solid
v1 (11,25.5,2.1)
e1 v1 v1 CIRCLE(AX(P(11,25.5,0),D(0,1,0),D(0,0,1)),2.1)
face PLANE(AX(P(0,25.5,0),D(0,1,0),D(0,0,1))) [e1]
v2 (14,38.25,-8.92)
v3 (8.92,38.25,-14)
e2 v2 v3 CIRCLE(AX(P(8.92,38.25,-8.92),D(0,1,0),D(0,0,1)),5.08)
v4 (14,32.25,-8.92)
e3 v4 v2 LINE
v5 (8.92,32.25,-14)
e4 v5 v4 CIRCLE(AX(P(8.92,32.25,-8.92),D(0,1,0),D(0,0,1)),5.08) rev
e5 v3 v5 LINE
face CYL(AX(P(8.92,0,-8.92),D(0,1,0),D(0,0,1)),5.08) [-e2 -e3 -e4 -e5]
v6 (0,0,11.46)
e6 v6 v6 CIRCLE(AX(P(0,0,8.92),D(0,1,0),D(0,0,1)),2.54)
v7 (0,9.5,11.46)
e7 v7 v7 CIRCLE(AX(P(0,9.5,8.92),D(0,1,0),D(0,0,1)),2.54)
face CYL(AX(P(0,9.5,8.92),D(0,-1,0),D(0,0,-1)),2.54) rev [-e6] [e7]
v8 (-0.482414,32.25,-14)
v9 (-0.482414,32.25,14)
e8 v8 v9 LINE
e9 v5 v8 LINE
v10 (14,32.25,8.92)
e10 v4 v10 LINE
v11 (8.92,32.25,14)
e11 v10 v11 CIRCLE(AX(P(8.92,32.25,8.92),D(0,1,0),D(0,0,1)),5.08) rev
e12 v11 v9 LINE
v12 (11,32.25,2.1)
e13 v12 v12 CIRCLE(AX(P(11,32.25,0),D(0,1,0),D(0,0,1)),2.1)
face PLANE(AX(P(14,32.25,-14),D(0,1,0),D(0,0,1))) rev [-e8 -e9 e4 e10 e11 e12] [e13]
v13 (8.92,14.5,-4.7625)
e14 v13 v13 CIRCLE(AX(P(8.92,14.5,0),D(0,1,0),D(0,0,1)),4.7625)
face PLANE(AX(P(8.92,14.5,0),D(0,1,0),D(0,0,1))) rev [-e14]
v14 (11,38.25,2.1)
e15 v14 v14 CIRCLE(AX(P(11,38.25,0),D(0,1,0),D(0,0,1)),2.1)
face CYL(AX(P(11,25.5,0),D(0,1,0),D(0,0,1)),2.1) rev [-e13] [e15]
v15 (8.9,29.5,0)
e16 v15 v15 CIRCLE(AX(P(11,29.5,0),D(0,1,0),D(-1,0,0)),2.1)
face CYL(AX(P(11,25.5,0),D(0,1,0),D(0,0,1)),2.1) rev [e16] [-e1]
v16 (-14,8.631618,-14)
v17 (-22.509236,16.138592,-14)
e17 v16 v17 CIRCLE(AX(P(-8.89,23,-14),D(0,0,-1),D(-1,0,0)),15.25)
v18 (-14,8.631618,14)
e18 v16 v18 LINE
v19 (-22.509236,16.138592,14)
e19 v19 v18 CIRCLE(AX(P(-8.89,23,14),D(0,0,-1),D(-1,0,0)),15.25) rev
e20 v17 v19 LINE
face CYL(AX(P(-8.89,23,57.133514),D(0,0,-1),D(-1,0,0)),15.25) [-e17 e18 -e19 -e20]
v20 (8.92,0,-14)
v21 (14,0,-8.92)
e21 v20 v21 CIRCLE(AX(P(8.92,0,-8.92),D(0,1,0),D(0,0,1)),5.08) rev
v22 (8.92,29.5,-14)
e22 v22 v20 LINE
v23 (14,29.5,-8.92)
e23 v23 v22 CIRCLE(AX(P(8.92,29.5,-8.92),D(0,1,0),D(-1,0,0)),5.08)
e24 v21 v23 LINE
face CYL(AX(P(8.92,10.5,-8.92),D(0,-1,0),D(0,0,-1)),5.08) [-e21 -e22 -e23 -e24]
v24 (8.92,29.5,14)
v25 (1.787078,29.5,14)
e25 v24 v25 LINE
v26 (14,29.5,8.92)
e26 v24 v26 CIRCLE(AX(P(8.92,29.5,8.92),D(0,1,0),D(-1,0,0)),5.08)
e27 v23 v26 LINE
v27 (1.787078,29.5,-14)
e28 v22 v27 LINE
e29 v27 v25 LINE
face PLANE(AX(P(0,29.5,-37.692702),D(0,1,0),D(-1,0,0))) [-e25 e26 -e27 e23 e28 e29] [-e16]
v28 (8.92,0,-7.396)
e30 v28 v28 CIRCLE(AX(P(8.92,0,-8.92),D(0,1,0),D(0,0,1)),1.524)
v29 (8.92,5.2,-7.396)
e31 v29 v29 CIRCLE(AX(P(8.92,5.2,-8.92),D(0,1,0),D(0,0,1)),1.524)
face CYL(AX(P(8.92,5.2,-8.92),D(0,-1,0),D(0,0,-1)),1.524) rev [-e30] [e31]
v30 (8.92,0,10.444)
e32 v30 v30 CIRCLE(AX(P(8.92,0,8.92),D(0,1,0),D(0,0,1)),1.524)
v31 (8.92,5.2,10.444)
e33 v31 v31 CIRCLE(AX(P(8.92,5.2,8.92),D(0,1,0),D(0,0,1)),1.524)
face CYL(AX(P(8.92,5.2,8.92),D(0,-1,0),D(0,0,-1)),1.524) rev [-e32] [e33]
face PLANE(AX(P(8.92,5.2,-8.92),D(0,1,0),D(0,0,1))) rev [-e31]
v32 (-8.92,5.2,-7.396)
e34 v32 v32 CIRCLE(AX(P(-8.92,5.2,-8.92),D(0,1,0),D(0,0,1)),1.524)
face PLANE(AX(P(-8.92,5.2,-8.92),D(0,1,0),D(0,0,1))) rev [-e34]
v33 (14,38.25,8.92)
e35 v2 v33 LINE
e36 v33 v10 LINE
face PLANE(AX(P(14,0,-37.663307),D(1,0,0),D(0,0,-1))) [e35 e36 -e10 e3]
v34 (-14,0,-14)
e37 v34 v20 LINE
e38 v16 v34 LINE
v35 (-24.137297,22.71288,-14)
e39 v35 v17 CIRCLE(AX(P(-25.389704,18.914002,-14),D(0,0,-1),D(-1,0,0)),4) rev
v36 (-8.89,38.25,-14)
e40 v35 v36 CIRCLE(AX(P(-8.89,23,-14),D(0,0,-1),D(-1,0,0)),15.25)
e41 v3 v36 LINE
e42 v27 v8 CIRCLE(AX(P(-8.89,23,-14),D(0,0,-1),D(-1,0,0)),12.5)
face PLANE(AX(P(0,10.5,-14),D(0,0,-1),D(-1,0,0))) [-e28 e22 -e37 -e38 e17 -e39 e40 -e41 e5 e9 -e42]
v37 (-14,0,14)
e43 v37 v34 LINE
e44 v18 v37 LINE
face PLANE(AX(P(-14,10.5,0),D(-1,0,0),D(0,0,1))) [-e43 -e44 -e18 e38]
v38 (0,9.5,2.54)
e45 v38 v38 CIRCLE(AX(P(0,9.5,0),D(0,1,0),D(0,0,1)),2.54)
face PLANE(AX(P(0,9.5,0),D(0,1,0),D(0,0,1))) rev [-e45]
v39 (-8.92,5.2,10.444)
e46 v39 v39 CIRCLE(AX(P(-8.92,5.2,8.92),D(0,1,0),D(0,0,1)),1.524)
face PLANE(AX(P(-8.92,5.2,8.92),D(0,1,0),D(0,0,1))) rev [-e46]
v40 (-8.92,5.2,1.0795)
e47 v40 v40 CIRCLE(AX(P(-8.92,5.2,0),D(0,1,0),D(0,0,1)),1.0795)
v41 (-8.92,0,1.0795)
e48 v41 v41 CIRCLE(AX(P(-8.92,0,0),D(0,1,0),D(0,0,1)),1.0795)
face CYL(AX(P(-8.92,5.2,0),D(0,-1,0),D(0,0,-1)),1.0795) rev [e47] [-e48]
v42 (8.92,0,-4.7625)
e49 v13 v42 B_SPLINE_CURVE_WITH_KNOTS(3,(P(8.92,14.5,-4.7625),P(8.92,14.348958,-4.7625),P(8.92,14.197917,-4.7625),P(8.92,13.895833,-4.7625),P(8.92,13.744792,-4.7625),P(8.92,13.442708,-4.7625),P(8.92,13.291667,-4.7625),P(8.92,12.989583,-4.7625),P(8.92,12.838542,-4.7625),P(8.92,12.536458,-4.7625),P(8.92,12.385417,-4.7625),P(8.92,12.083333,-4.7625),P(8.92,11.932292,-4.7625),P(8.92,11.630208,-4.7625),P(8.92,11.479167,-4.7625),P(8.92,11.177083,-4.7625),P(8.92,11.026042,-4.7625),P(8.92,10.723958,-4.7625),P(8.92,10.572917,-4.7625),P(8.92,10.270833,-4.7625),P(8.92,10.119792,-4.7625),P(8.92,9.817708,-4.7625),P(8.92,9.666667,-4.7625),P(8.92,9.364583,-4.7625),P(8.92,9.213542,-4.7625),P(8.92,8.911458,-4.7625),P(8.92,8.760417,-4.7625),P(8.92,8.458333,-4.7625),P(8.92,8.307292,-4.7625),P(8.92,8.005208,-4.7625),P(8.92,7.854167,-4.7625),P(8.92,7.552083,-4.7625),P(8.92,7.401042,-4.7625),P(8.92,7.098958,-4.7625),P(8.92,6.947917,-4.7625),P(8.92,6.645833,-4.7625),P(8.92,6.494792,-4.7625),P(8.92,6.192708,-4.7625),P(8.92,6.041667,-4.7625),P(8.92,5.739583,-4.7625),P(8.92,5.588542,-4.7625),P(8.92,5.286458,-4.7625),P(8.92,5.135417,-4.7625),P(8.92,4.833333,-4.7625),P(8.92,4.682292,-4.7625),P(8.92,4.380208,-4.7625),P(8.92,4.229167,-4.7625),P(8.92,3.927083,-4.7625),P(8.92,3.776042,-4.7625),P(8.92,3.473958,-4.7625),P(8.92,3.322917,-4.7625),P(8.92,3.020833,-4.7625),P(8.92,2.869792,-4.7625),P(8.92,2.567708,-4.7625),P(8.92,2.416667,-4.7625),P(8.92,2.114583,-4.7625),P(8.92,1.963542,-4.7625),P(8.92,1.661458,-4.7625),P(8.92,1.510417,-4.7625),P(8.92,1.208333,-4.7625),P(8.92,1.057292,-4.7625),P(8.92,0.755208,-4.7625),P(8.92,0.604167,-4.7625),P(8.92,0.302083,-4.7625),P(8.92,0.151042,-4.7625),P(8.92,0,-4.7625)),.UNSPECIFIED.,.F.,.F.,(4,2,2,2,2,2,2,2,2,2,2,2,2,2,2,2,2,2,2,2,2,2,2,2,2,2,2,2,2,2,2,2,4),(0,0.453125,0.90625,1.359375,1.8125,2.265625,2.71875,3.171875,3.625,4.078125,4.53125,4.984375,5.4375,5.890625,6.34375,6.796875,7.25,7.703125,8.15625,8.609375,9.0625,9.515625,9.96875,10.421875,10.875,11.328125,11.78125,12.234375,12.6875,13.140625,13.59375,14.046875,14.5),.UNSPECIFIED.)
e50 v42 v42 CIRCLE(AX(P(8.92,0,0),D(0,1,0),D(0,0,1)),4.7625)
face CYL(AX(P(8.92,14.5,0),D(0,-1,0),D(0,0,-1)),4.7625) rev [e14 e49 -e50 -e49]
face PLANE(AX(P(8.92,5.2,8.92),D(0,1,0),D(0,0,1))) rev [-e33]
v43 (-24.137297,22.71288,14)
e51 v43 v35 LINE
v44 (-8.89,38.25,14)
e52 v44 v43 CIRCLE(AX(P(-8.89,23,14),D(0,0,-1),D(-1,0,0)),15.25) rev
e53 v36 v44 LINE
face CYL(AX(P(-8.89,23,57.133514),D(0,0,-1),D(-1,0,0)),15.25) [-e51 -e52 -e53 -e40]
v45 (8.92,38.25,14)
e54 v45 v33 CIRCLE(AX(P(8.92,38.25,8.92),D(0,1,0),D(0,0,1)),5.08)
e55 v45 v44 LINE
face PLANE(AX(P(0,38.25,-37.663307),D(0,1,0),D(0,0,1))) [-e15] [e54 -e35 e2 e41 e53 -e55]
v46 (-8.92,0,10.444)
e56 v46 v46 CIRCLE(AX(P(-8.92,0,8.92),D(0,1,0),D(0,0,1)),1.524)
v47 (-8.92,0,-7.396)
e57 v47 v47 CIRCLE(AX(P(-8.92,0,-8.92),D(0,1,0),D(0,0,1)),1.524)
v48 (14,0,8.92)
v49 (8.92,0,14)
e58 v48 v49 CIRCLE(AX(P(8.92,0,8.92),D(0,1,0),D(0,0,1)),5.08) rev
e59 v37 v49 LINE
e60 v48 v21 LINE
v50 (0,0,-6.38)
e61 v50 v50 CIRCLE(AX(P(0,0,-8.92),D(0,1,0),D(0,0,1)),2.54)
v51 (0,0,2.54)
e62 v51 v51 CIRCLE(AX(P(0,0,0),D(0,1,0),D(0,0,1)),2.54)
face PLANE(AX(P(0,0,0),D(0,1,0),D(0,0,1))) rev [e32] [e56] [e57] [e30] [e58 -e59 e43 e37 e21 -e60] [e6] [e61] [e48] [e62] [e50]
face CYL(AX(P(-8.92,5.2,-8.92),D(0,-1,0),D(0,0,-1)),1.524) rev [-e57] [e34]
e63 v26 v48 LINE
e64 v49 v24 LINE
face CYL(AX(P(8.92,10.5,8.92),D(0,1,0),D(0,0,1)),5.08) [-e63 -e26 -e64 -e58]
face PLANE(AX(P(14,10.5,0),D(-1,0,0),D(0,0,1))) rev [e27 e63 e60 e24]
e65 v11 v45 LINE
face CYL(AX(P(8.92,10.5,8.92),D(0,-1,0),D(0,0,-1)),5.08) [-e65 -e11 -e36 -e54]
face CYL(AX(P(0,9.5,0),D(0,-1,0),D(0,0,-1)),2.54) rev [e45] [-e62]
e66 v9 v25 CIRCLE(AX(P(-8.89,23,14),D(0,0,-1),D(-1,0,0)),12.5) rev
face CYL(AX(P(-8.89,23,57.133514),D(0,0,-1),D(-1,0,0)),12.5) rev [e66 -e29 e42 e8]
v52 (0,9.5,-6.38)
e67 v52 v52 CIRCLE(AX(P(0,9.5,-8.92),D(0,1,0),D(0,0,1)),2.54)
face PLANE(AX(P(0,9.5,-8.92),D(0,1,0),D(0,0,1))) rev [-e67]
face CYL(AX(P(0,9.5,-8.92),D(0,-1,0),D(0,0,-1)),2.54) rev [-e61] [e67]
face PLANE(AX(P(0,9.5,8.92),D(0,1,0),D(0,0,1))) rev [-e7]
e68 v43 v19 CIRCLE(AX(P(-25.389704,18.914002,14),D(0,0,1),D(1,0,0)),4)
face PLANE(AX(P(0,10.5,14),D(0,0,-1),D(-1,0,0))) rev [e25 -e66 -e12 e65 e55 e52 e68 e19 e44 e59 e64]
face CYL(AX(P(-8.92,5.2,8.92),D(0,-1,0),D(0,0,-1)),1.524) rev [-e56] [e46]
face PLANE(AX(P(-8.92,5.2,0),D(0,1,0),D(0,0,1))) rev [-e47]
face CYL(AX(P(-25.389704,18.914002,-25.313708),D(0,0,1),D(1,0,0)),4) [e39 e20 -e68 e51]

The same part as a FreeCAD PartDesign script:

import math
import FreeCAD as App
import Part
import Sketcher

V = App.Vector
Q = App.Units.Quantity


def edges_at(feature, points):
    """Names of the edges that pass closest to the given points."""
    edges = feature.Shape.Edges
    near = lambda p: min(range(len(edges)), key=lambda i: edges[i].distToShape(Part.Vertex(*p))[0])
    return sorted({f"Edge{near(p) + 1}" for p in points})

doc = App.newDocument("Part")
body = doc.addObject("PartDesign::Body", "Body")

# Sketch on XZ plane
sketch1 = body.newObject("Sketcher::SketchObject", "Sketch")
sketch1.AttachmentSupport = (doc.getObject("XZ_Plane"), [""])
sketch1.MapMode = "FlatFace"
sketch1.addGeometry([
    Part.LineSegment(V(-14, -14, 0), V(-14, 14, 0)),
    Part.LineSegment(V(-14, 14, 0), V(14, 14, 0)),
    Part.LineSegment(V(14, 14, 0), V(14, -14, 0)),
    Part.LineSegment(V(14, -14, 0), V(-14, -14, 0)),
], False)
sketch1.addConstraint([
    Sketcher.Constraint("Coincident", 0, 2, 1, 1),
    Sketcher.Constraint("Coincident", 1, 2, 2, 1),
    Sketcher.Constraint("Coincident", 2, 2, 3, 1),
    Sketcher.Constraint("Coincident", 3, 2, 0, 1),
    Sketcher.Constraint("Vertical", 0),
    Sketcher.Constraint("Horizontal", 1),
    Sketcher.Constraint("Vertical", 2),
    Sketcher.Constraint("Horizontal", 3),
    Sketcher.Constraint("Symmetric", 0, 2, 2, 2, -1, 1),
    Sketcher.Constraint("Equal", 3, 0),
    Sketcher.Constraint("DistanceX", 1, 1, 1, 2, Q("28 mm")),
])
pad1 = body.newObject("PartDesign::Pad", "Pad")
pad1.Profile = sketch1
pad1.Length = 10.5
pad1.Reversed = True

# Sketch on XY plane
sketch2 = body.newObject("Sketcher::SketchObject", "Sketch001")
sketch2.AttachmentSupport = (doc.getObject("XY_Plane"), [""])
sketch2.MapMode = "FlatFace"
sketch2.AttachmentOffset = App.Placement(V(0, 0, -14), App.Rotation())
sketch2.addGeometry([
    Part.ArcOfCircle(Part.Circle(V(-9, 23, 0), V(0, 0, 1), 15), math.radians(-109.58), math.radians(-90)),  # 0
    Part.ArcOfCircle(Part.Circle(V(-9, 23, 0), V(0, 0, 1), 15), math.radians(180), math.radians(250)),  # 1
    Part.ArcOfCircle(Part.Circle(V(-9, 23, 0), V(0, 0, 1), 15), math.radians(90), math.radians(180)),  # 2
    Part.ArcOfCircle(Part.Circle(V(-9, 23, 0), V(0, 0, 1), 15), math.radians(0), math.radians(90)),  # 3
    Part.ArcOfCircle(Part.Circle(V(-9, 23, 0), V(0, 0, 1), 15), math.radians(-55), math.radians(0)),  # 4
    Part.ArcOfCircle(Part.Circle(V(-9, 23, 0), V(0, 0, 1), 15), math.radians(-90), math.radians(-55)),  # 5
    Part.ArcOfCircle(Part.Circle(V(-9, 23, 0), V(0, 0, 1), 12), math.radians(-90), math.radians(0)),  # 6
    Part.ArcOfCircle(Part.Circle(V(-9, 23, 0), V(0, 0, 1), 12), math.radians(0), math.radians(90)),  # 7
    Part.ArcOfCircle(Part.Circle(V(-9, 23, 0), V(0, 0, 1), 12), math.radians(90), math.radians(180)),  # 8
    Part.ArcOfCircle(Part.Circle(V(-9, 23, 0), V(0, 0, 1), 12), math.radians(180), math.radians(270)),  # 9
], False)
sketch2.addConstraint([
    Sketcher.Constraint("Tangent", 0, 1, 1, 2),
    Sketcher.Constraint("Tangent", 1, 1, 2, 2),
    Sketcher.Constraint("Tangent", 2, 1, 3, 2),
    Sketcher.Constraint("Tangent", 3, 1, 4, 2),
    Sketcher.Constraint("Tangent", 4, 1, 5, 2),
    Sketcher.Constraint("Tangent", 5, 1, 0, 2),
    Sketcher.Constraint("Tangent", 6, 2, 7, 1),
    Sketcher.Constraint("Tangent", 7, 2, 8, 1),
    Sketcher.Constraint("Tangent", 8, 2, 9, 1),
    Sketcher.Constraint("Tangent", 9, 2, 6, 1),
    Sketcher.Constraint("Coincident", 2, 3, 0, 3),
    Sketcher.Constraint("Coincident", 6, 3, 0, 3),
    Sketcher.Constraint("Equal", 2, 3),
    Sketcher.Constraint("Equal", 6, 7),
    Sketcher.Constraint("Horizontal", 9, 3, 1, 1),
    Sketcher.Constraint("Horizontal", 1, 1, 3, 1),
    Sketcher.Constraint("Horizontal", 3, 1, 6, 2),
    Sketcher.Constraint("Horizontal", 6, 2, 8, 2),
    Sketcher.Constraint("Horizontal", 4, 1, 9, 2),
    Sketcher.Constraint("Vertical", 9, 3, 2, 1),
    Sketcher.Constraint("Vertical", 2, 1, 5, 1),
    Sketcher.Constraint("Vertical", 5, 1, 7, 2),
    Sketcher.Constraint("Vertical", 7, 2, 9, 2),
    Sketcher.Constraint("Radius", 6, Q("12.5 mm")),
    Sketcher.Constraint("Radius", 0, Q("15.25 mm")),
    Sketcher.Constraint("DistanceY", -1, 1, 0, 3, Q("23 mm")),
    Sketcher.Constraint("DistanceX", 0, 1, -1, 1, Q("14 mm")),
    Sketcher.Constraint("DistanceX", 0, 3, -1, 1, Q("8.89 mm")),
])
pad2 = body.newObject("PartDesign::Pad", "Pad001")
pad2.Profile = sketch2
pad2.Length = 28

# Sketch on XY plane
sketch3 = body.newObject("Sketcher::SketchObject", "Sketch002")
sketch3.AttachmentSupport = (doc.getObject("XY_Plane"), [""])
sketch3.MapMode = "FlatFace"
sketch3.AttachmentOffset = App.Placement(V(0, 0, 14), App.Rotation())
sketch3.addGeometry(Part.Circle(V(-25.4, 18.9, 0), V(0, 0, 1), 4), False)
sketch3.addConstraint([
    Sketcher.Constraint("Diameter", 0, Q("8 mm")),
    Sketcher.Constraint("DistanceX", 0, 3, -1, 1, Q("25.389704 mm")),
    Sketcher.Constraint("DistanceY", -1, 1, 0, 3, Q("18.914002 mm")),
])
pad3 = body.newObject("PartDesign::Pad", "Pad002")
pad3.Profile = sketch3
pad3.Length = 28
pad3.Reversed = True

# Sketch on XY plane
sketch4 = body.newObject("Sketcher::SketchObject", "Sketch003")
sketch4.AttachmentSupport = (doc.getObject("XY_Plane"), [""])
sketch4.MapMode = "FlatFace"
sketch4.AttachmentOffset = App.Placement(V(0, 0, -14), App.Rotation())
sketch4.addGeometry([
    Part.ArcOfCircle(Part.Circle(V(-9, 23, 0), V(0, 0, 1), 15), math.radians(-55), math.radians(25)),
    Part.LineSegment(V(0, 10, 0), V(14, 10, 0)),
    Part.LineSegment(V(14, 10, 0), V(14, 30, 0)),
    Part.LineSegment(V(14, 30, 0), V(5, 30, 0)),
], False)
sketch4.addConstraint([
    Sketcher.Constraint("Coincident", 0, 1, 1, 1),
    Sketcher.Constraint("Coincident", 1, 2, 2, 1),
    Sketcher.Constraint("Coincident", 2, 2, 3, 1),
    Sketcher.Constraint("Coincident", 3, 2, 0, 2),
    Sketcher.Constraint("Horizontal", 1),
    Sketcher.Constraint("Vertical", 2),
    Sketcher.Constraint("Horizontal", 3),
    Sketcher.Constraint("DistanceY", 2, 1, 2, 2, Q("19 mm")),
    Sketcher.Constraint("Radius", 0, Q("15.25 mm")),
    Sketcher.Constraint("DistanceY", -1, 1, 0, 3, Q("23 mm")),
    Sketcher.Constraint("DistanceX", -1, 1, 1, 2, Q("14 mm")),
    Sketcher.Constraint("DistanceY", -1, 1, 0, 1, Q("10.5 mm")),
    Sketcher.Constraint("DistanceX", 0, 3, -1, 1, Q("8.89 mm")),
])
pad4 = body.newObject("PartDesign::Pad", "Pad003")
pad4.Profile = sketch4
pad4.Length = 28

# Sketch on XY plane
sketch5 = body.newObject("Sketcher::SketchObject", "Sketch004")
sketch5.AttachmentSupport = (doc.getObject("XY_Plane"), [""])
sketch5.MapMode = "FlatFace"
sketch5.AttachmentOffset = App.Placement(V(0, 0, 14), App.Rotation())
sketch5.addGeometry([
    Part.LineSegment(V(14, 29.5, 0), V(14, 32.2, 0)),
    Part.LineSegment(V(14, 32.2, 0), V(-0.5, 32.2, 0)),
    Part.ArcOfCircle(Part.Circle(V(-8.9, 23, 0), V(0, 0, 1), 12.5), math.radians(31.33), math.radians(47.73)),
    Part.LineSegment(V(1.8, 29.5, 0), V(14, 29.5, 0)),
], False)
sketch5.addConstraint([
    Sketcher.Constraint("Coincident", 0, 2, 1, 1),
    Sketcher.Constraint("Coincident", 1, 2, 2, 2),
    Sketcher.Constraint("Coincident", 2, 1, 3, 1),
    Sketcher.Constraint("Coincident", 3, 2, 0, 1),
    Sketcher.Constraint("Vertical", 0),
    Sketcher.Constraint("Horizontal", 1),
    Sketcher.Constraint("Horizontal", 3),
    Sketcher.Constraint("Radius", 2, Q("12.5 mm")),
    Sketcher.Constraint("DistanceY", -1, 1, 2, 3, Q("23 mm")),
    Sketcher.Constraint("DistanceX", -1, 1, 0, 2, Q("14 mm")),
    Sketcher.Constraint("DistanceY", 0, 1, 0, 2, Q("2.75 mm")),
    Sketcher.Constraint("DistanceY", -1, 1, 2, 1, Q("29.5 mm")),
    Sketcher.Constraint("DistanceX", 2, 3, -1, 1, Q("8.89 mm")),
])
pocket1 = body.newObject("PartDesign::Pocket", "Pocket")
pocket1.Profile = sketch5
pocket1.Type = "ThroughAll"

# Sketch on XY plane
sketch6 = body.newObject("Sketcher::SketchObject", "Sketch005")
sketch6.AttachmentSupport = (doc.getObject("XY_Plane"), [""])
sketch6.MapMode = "FlatFace"
sketch6.AttachmentOffset = App.Placement(V(0, 0, -14), App.Rotation())
sketch6.addGeometry([
    Part.LineSegment(V(14, 38.2, 0), V(-8.9, 38.2, 0)),  # 0
    Part.ArcOfCircle(Part.Circle(V(-8.9, 23, 0), V(0, 0, 1), 15.2), math.radians(48), math.radians(90)),  # 1
    Part.ArcOfCircle(Part.Circle(V(-8.9, 23, 0), V(0, 0, 1), 15.3), math.radians(37.34), math.radians(48.16)),  # 2
    Part.LineSegment(V(3.2, 32.2, 0), V(14, 32.2, 0)),  # 3
    Part.LineSegment(V(14, 32.2, 0), V(14, 38.2, 0)),  # 4
], False)
sketch6.addConstraint([
    Sketcher.Constraint("Tangent", 0, 2, 1, 2),
    Sketcher.Constraint("Tangent", 1, 1, 2, 2),
    Sketcher.Constraint("Coincident", 2, 1, 3, 1),
    Sketcher.Constraint("Coincident", 3, 2, 4, 1),
    Sketcher.Constraint("Coincident", 4, 2, 0, 1),
    Sketcher.Constraint("Horizontal", 0),
    Sketcher.Constraint("Horizontal", 3),
    Sketcher.Constraint("Vertical", 4),
    Sketcher.Constraint("Equal", 1, 2),
    Sketcher.Constraint("DistanceY", 4, 1, 4, 2, Q("6 mm")),
    Sketcher.Constraint("Radius", 1, Q("15.25 mm")),
    Sketcher.Constraint("DistanceY", -1, 1, 1, 3, Q("23 mm")),
    Sketcher.Constraint("DistanceX", -1, 1, 3, 2, Q("14 mm")),
    Sketcher.Constraint("DistanceX", 0, 2, 0, 1, Q("22.89 mm")),
    Sketcher.Constraint("DistanceX", 1, 1, 2, 1, Q("1.951799 mm")),
])
pad5 = body.newObject("PartDesign::Pad", "Pad004")
pad5.Profile = sketch6
pad5.Length = 28

# Sketch on XZ plane
sketch7 = body.newObject("Sketcher::SketchObject", "Sketch006")
sketch7.AttachmentSupport = (doc.getObject("XZ_Plane"), [""])
sketch7.MapMode = "FlatFace"
sketch7.AttachmentOffset = App.Placement(V(0, 0, -38.25), App.Rotation())
sketch7.addGeometry(Part.Circle(V(11, 0, 0), V(0, 0, 1), 2.1), False)
sketch7.addConstraint([
    Sketcher.Constraint("PointOnObject", 0, 3, -1),
    Sketcher.Constraint("Diameter", 0, Q("4.2 mm")),
    Sketcher.Constraint("DistanceX", -1, 1, 0, 3, Q("11 mm")),
])
pocket2 = body.newObject("PartDesign::Pocket", "Pocket001")
pocket2.Profile = sketch7
pocket2.Length = 12.75
pocket2.Reversed = True

# Sketch on XZ plane
sketch8 = body.newObject("Sketcher::SketchObject", "Sketch007")
sketch8.AttachmentSupport = (doc.getObject("XZ_Plane"), [""])
sketch8.MapMode = "FlatFace"
sketch8.addGeometry([
    Part.Circle(V(-8.9, -8.9, 0), V(0, 0, 1), 1.5),  # 0
    Part.Circle(V(8.9, -8.9, 0), V(0, 0, 1), 1.5),  # 1
    Part.Circle(V(8.9, 8.9, 0), V(0, 0, 1), 1.5),  # 2
    Part.Circle(V(-8.9, 8.9, 0), V(0, 0, 1), 1.5),  # 3
    Part.Circle(V(-8.9, 0, 0), V(0, 0, 1), 1.1),  # 4
], False)
sketch8.addConstraint([
    Sketcher.Constraint("Equal", 0, 1),
    Sketcher.Constraint("Equal", 1, 2),
    Sketcher.Constraint("Equal", 2, 3),
    Sketcher.Constraint("Symmetric", 0, 3, 2, 3, -1, 1),
    Sketcher.Constraint("Symmetric", 1, 3, 3, 3, -1, 1),
    Sketcher.Constraint("Symmetric", 0, 3, 1, 3, -2),
    Sketcher.Constraint("PointOnObject", 4, 3, -1),
    Sketcher.Constraint("Vertical", 3, 3, 4, 3),
    Sketcher.Constraint("Diameter", 0, Q("3.048 mm")),
    Sketcher.Constraint("Diameter", 4, Q("2.159 mm")),
    Sketcher.Constraint("DistanceX", 0, 3, -1, 1, Q("8.92 mm")),
    Sketcher.Constraint("DistanceY", 0, 3, -1, 1, Q("8.92 mm")),
])
pocket3 = body.newObject("PartDesign::Pocket", "Pocket002")
pocket3.Profile = sketch8
pocket3.Length = 5.2

# Sketch on XZ plane
sketch9 = body.newObject("Sketcher::SketchObject", "Sketch008")
sketch9.AttachmentSupport = (doc.getObject("XZ_Plane"), [""])
sketch9.MapMode = "FlatFace"
sketch9.addGeometry([
    Part.Circle(V(0, -8.9, 0), V(0, 0, 1), 2.5),
    Part.Circle(V(0, 8.9, 0), V(0, 0, 1), 2.5),
    Part.Circle(V(0, 0, 0), V(0, 0, 1), 2.5),
], False)
sketch9.addConstraint([
    Sketcher.Constraint("Coincident", 2, 3, -1, 1),
    Sketcher.Constraint("Equal", 0, 1),
    Sketcher.Constraint("Equal", 1, 2),
    Sketcher.Constraint("Symmetric", 0, 3, 1, 3, -1, 1),
    Sketcher.Constraint("PointOnObject", 0, 3, -2),
    Sketcher.Constraint("Diameter", 0, Q("5.08 mm")),
    Sketcher.Constraint("DistanceY", 0, 3, -1, 1, Q("8.92 mm")),
])
pocket4 = body.newObject("PartDesign::Pocket", "Pocket003")
pocket4.Profile = sketch9
pocket4.Length = 9.5

# Sketch on XZ plane
sketch10 = body.newObject("Sketcher::SketchObject", "Sketch009")
sketch10.AttachmentSupport = (doc.getObject("XZ_Plane"), [""])
sketch10.MapMode = "FlatFace"
sketch10.addGeometry(Part.Circle(V(8.9, 0, 0), V(0, 0, 1), 4.8), False)
sketch10.addConstraint([
    Sketcher.Constraint("PointOnObject", 0, 3, -1),
    Sketcher.Constraint("Diameter", 0, Q("9.525 mm")),
    Sketcher.Constraint("DistanceX", -1, 1, 0, 3, Q("8.92 mm")),
])
pocket5 = body.newObject("PartDesign::Pocket", "Pocket004")
pocket5.Profile = sketch10
pocket5.Length = 14.5
doc.recompute()

fillet = body.newObject("PartDesign::Fillet", "Fillet")
fillet.Base = (pocket5, edges_at(pocket5, [(14, 14.75, 14)]))
fillet.Radius = 5.08
doc.recompute()

fillet2 = body.newObject("PartDesign::Fillet", "Fillet001")
fillet2.Base = (fillet, edges_at(fillet, [(14, 35.25, 14)]))
fillet2.Radius = 5.08
doc.recompute()

fillet3 = body.newObject("PartDesign::Fillet", "Fillet002")
fillet3.Base = (fillet2, edges_at(fillet2, [(14, 35.25, -14)]))
fillet3.Radius = 5.08
doc.recompute()

fillet4 = body.newObject("PartDesign::Fillet", "Fillet003")
fillet4.Base = (fillet3, edges_at(fillet3, [(14, 14.75, -14)]))
fillet4.Radius = 5.08

doc.recompute()
